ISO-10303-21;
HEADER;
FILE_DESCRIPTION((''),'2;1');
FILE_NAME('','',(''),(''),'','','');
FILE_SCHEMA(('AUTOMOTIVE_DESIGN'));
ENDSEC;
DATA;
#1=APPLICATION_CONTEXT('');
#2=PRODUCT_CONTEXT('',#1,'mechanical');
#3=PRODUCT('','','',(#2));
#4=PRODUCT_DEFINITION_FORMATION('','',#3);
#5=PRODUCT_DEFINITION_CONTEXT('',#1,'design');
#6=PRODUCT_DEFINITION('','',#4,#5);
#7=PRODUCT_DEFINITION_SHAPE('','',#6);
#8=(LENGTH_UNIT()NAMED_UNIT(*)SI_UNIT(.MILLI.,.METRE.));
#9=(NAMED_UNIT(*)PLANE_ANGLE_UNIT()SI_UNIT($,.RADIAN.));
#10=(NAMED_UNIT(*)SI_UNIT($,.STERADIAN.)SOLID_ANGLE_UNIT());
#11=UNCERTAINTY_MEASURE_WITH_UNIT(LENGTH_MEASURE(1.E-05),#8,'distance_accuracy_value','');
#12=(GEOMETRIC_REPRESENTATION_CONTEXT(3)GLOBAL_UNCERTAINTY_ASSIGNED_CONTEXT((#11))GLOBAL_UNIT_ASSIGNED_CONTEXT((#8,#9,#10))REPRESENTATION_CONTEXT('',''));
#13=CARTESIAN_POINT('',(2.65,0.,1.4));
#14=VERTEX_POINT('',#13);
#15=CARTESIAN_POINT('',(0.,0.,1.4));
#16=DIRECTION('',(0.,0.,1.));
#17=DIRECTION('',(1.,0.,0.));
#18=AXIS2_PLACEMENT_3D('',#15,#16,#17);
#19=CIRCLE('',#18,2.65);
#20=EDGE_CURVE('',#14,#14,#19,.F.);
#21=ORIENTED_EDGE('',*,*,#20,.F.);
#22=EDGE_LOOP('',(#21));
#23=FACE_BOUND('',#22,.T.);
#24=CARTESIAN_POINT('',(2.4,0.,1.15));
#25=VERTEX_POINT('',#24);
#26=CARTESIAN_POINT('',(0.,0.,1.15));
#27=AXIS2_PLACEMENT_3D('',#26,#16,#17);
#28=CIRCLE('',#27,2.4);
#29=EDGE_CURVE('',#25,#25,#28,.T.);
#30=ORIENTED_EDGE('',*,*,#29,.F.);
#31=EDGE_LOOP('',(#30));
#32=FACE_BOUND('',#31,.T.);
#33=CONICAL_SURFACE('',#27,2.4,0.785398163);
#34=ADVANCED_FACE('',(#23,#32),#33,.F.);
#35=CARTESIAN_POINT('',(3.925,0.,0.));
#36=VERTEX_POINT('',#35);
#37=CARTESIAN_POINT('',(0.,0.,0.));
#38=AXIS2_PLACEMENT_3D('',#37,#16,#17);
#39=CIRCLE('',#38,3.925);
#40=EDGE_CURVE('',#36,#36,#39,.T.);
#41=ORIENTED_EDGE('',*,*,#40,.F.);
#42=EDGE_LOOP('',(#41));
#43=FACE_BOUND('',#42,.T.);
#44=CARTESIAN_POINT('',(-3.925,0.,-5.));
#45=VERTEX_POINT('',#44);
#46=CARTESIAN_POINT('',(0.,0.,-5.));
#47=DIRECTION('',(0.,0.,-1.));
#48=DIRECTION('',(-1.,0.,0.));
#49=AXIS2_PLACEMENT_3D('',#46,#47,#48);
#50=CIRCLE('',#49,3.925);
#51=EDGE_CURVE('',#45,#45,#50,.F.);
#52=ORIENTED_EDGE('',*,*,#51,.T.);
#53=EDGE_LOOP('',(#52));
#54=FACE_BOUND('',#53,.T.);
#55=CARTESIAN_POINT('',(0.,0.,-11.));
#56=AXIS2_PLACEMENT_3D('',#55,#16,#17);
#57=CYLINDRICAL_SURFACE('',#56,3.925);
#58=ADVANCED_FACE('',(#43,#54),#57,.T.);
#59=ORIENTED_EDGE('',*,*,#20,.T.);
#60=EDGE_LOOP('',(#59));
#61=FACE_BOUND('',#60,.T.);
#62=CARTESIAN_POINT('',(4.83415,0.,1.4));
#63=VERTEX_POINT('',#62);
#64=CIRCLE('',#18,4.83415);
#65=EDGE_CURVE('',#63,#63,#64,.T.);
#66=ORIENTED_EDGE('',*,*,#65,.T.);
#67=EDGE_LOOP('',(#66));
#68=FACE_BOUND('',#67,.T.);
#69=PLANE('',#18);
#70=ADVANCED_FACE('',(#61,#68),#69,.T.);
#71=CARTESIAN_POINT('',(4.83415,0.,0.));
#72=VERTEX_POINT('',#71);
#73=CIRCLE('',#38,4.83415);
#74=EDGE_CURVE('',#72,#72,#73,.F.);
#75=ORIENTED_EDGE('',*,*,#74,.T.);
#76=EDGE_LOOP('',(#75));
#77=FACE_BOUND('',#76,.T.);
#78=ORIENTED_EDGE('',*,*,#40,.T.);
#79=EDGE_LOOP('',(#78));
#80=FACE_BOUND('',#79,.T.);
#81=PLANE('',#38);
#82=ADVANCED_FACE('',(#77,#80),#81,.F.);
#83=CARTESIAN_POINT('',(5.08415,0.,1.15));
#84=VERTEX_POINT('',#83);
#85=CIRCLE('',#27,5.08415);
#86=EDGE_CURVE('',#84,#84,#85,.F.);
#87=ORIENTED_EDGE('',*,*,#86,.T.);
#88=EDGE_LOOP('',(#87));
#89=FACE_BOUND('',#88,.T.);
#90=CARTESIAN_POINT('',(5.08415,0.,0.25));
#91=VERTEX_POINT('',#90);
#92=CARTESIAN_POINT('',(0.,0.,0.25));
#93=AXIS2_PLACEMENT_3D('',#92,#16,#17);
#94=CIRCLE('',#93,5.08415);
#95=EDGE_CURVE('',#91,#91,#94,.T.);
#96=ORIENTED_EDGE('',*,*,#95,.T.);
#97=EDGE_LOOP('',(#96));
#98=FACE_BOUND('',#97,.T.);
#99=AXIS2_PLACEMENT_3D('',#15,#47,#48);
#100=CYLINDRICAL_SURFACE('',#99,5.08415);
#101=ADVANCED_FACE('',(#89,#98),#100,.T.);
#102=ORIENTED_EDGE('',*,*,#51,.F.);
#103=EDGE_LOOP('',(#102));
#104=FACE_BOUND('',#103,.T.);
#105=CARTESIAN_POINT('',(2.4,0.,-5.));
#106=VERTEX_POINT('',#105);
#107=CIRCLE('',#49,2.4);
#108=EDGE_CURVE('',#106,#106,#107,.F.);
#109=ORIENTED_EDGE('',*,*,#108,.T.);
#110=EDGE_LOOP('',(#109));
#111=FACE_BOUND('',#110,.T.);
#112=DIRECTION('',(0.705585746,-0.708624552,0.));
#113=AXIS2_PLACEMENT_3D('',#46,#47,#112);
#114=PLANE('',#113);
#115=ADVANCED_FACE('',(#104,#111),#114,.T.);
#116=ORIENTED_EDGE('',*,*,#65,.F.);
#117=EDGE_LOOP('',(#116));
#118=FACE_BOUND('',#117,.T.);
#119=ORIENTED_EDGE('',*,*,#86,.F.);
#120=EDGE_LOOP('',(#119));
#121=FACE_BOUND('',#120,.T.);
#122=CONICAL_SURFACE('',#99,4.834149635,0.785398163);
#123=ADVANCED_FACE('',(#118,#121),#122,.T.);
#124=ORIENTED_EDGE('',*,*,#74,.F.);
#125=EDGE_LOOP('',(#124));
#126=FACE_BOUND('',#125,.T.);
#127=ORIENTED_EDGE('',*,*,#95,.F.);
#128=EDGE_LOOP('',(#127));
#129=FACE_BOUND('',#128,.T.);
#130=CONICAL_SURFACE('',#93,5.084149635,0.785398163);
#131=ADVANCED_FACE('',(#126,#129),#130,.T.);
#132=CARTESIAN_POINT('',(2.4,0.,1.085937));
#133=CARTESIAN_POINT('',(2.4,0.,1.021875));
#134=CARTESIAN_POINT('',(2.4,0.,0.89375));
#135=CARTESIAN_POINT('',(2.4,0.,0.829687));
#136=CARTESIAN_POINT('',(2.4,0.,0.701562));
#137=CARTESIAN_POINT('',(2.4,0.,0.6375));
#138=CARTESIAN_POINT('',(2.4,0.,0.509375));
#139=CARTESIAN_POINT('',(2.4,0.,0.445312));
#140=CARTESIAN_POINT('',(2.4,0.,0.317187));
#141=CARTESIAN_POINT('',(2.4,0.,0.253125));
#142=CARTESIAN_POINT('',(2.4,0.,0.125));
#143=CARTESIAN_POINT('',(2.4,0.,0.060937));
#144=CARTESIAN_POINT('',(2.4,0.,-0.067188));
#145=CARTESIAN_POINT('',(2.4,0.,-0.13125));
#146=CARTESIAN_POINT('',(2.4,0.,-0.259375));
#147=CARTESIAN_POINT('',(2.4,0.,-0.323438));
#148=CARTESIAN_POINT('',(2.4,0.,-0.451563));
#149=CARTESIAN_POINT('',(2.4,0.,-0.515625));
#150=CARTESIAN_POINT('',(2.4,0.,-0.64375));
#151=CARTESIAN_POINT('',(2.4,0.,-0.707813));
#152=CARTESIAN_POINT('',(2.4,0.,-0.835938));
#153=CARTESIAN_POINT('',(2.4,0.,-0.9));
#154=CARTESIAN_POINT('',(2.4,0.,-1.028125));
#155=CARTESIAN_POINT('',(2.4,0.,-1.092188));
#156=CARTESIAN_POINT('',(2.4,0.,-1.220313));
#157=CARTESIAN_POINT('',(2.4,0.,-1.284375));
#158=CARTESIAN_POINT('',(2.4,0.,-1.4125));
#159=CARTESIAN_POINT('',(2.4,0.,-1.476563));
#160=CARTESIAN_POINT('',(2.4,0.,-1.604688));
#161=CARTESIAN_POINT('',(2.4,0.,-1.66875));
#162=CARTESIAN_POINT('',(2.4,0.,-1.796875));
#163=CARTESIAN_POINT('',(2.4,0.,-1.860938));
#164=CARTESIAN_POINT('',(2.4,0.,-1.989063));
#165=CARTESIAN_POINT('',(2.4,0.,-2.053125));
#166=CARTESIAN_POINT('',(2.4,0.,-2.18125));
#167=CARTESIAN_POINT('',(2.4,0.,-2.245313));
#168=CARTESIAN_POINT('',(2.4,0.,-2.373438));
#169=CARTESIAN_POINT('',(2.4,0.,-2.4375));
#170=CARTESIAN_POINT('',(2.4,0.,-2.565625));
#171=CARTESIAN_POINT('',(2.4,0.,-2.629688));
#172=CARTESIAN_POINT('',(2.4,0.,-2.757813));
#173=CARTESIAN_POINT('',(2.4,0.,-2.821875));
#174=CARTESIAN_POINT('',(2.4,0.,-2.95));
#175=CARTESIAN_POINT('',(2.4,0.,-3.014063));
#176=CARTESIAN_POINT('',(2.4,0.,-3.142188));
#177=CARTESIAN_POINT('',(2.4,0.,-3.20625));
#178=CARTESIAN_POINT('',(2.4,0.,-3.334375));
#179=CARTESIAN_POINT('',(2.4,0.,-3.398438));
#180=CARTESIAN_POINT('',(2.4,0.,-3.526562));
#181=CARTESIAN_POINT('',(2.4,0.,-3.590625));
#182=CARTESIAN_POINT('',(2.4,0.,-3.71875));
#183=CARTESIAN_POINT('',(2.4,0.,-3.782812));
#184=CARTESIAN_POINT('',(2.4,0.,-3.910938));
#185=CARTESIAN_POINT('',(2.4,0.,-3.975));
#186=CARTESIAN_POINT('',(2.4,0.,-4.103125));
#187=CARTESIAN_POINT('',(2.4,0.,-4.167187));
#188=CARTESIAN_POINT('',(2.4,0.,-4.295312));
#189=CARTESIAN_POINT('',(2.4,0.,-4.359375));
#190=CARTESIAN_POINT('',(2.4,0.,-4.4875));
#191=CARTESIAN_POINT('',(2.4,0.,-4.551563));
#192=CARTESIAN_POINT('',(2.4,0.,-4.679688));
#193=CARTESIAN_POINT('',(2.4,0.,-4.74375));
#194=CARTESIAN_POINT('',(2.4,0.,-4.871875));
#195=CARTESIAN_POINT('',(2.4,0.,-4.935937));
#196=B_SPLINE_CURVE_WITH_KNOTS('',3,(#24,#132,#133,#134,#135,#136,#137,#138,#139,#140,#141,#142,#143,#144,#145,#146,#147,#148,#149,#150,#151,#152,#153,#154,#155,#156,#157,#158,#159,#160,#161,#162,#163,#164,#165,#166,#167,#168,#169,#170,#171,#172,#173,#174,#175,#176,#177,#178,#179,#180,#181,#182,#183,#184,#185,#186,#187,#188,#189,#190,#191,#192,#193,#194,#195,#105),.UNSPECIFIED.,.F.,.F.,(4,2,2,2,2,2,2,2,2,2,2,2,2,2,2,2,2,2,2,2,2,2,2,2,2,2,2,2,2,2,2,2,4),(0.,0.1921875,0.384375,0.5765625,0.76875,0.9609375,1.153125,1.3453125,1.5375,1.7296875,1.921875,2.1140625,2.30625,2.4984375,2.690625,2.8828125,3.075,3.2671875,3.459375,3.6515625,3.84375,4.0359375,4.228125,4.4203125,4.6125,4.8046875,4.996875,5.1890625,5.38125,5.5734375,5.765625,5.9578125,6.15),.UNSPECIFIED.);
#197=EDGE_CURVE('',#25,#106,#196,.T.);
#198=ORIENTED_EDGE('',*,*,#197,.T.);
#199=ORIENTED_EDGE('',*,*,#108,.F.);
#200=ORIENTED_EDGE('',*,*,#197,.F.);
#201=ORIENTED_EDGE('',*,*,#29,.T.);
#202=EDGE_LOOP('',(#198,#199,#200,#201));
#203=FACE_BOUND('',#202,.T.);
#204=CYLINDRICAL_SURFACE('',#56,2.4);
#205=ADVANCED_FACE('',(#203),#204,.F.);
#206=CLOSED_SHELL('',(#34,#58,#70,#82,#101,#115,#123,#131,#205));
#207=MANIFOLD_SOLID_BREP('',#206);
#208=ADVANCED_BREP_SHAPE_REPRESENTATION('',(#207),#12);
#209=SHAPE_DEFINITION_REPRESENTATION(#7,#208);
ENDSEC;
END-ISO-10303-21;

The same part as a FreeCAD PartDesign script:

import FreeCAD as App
import Part
import Sketcher

V = App.Vector
Q = App.Units.Quantity


def edges_at(feature, points):
    """Names of the edges that pass closest to the given points."""
    edges = feature.Shape.Edges
    near = lambda p: min(range(len(edges)), key=lambda i: edges[i].distToShape(Part.Vertex(*p))[0])
    return sorted({f"Edge{near(p) + 1}" for p in points})

doc = App.newDocument("Part")
body = doc.addObject("PartDesign::Body", "Body")

# Sketch on XY plane
sketch1 = body.newObject("Sketcher::SketchObject", "Sketch")
sketch1.AttachmentSupport = (doc.getObject("XY_Plane"), [""])
sketch1.MapMode = "FlatFace"
sketch1.addGeometry(Part.Circle(V(0, 0, 0), V(0, 0, 1), 3.9), False)
sketch1.addConstraint([
    Sketcher.Constraint("Coincident", 0, 3, -1, 1),
    Sketcher.Constraint("Diameter", 0, Q("7.85 mm")),
])
pad1 = body.newObject("PartDesign::Pad", "Pad")
pad1.Profile = sketch1
pad1.Length = 11
pad1.Reversed = True

# Sketch on XY plane
sketch2 = body.newObject("Sketcher::SketchObject", "Sketch001")
sketch2.AttachmentSupport = (doc.getObject("XY_Plane"), [""])
sketch2.MapMode = "FlatFace"
sketch2.addGeometry(Part.Circle(V(0, 0, 0), V(0, 0, 1), 5), False)
sketch2.addConstraint([
    Sketcher.Constraint("Coincident", 0, 3, -1, 1),
    Sketcher.Constraint("Diameter", 0, Q("10.168299 mm")),
])
pad2 = body.newObject("PartDesign::Pad", "Pad001")
pad2.Profile = sketch2
pad2.Length = 1.4

# Sketch on XY plane
sketch3 = body.newObject("Sketcher::SketchObject", "Sketch002")
sketch3.AttachmentSupport = (doc.getObject("XY_Plane"), [""])
sketch3.MapMode = "FlatFace"
sketch3.AttachmentOffset = App.Placement(V(0, 0, 1.4), App.Rotation())
sketch3.addGeometry(Part.Circle(V(0, 0, 0), V(0, 0, 1), 2.4), False)
sketch3.addConstraint([
    Sketcher.Constraint("Coincident", 0, 3, -1, 1),
    Sketcher.Constraint("Diameter", 0, Q("4.8 mm")),
])
pocket1 = body.newObject("PartDesign::Pocket", "Pocket")
pocket1.Profile = sketch3
pocket1.Type = "ThroughAll"
doc.recompute()

chamfer = body.newObject("PartDesign::Chamfer", "Chamfer")
chamfer.Base = (pocket1, edges_at(pocket1, [
    (-2.4, 0, -11),
    (-2.4, 0, 1.4),
    (-3.925, 0, -11),
    (-5.084, 0, 0),
    (-5.084, 0, 1.4),
]))
chamfer.Size = 0.25

# Sketch on XY plane
sketch4 = body.newObject("Sketcher::SketchObject", "Sketch003")
sketch4.AttachmentSupport = (doc.getObject("XY_Plane"), [""])
sketch4.MapMode = "FlatFace"
sketch4.AttachmentOffset = App.Placement(V(0, 0, -5), App.Rotation())
sketch4.addGeometry(Part.Circle(V(0, 0, 0), V(0, 0, 1), 6), False)
sketch4.addConstraint([
    Sketcher.Constraint("Coincident", 0, 3, -1, 1),
    Sketcher.Constraint("Diameter", 0, Q("12.231832 mm")),
])
pocket2 = body.newObject("PartDesign::Pocket", "Pocket001")
pocket2.Profile = sketch4
pocket2.Length = 6

doc.recompute()
